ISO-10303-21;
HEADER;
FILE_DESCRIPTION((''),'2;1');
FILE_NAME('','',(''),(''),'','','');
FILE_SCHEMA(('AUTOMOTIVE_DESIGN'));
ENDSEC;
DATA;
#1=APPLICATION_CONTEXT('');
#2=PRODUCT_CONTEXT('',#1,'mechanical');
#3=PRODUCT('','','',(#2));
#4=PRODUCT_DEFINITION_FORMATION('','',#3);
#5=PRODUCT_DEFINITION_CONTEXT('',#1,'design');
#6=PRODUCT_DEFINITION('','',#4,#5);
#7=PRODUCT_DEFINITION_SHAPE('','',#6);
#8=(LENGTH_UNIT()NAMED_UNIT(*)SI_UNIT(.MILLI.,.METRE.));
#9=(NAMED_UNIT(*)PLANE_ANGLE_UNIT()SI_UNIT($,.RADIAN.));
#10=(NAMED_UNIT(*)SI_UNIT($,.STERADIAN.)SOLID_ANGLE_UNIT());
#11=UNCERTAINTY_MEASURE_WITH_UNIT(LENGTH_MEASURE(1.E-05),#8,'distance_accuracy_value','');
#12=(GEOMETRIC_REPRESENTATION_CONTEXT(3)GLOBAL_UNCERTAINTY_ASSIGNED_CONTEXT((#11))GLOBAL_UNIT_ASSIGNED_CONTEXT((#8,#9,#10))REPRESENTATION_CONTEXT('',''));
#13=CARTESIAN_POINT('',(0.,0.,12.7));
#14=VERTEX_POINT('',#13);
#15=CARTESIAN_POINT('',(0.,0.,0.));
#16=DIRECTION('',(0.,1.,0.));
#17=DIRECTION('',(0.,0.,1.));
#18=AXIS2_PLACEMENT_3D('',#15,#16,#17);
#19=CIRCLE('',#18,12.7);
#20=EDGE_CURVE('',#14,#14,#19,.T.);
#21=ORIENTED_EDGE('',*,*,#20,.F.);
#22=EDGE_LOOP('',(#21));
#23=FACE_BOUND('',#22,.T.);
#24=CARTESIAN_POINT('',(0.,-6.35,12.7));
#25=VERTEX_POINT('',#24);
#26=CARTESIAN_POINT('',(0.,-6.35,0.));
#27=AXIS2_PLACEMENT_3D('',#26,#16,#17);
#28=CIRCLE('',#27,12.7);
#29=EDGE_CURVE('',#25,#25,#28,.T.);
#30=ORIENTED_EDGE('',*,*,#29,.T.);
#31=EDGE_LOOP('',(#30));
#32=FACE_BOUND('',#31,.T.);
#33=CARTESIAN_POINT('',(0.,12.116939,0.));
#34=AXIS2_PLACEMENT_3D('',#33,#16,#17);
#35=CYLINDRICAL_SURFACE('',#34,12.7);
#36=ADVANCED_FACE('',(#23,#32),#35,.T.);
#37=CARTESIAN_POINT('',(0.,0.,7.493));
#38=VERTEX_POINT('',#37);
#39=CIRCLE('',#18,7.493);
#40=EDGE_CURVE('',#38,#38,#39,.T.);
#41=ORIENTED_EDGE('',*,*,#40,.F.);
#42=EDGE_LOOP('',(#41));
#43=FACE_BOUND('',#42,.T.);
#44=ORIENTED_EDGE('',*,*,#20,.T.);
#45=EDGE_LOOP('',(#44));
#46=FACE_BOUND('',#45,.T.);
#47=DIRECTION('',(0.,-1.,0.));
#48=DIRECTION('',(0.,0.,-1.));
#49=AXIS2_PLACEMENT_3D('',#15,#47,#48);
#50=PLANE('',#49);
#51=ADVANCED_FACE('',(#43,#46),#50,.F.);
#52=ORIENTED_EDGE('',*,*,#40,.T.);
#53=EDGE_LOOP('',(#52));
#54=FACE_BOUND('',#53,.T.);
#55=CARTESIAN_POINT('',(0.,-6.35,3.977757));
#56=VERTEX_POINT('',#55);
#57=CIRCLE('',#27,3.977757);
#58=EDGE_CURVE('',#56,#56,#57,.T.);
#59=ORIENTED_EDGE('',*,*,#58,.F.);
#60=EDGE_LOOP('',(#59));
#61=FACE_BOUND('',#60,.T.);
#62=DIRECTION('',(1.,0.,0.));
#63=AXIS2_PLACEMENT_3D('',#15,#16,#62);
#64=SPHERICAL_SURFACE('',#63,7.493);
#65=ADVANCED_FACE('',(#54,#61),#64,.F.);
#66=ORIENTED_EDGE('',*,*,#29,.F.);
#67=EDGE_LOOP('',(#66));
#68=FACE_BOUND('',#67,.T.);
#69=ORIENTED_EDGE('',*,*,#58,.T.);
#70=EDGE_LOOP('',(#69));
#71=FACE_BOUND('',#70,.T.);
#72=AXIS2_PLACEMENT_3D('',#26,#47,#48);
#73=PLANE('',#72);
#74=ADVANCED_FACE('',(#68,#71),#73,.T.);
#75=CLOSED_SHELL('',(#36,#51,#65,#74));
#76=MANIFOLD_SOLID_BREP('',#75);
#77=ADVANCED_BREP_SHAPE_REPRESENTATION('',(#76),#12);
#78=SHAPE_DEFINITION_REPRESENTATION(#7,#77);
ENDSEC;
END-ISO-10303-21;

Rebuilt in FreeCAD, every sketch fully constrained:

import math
import FreeCAD as App
import Part
import Sketcher
from FreeCAD import Vector
Q = App.Units.Quantity

doc = App.newDocument("Part")
body = doc.addObject("PartDesign::Body", "Body")

sketch1 = body.newObject("Sketcher::SketchObject", "Sketch")
sketch1.AttachmentSupport = (doc.getObject("XY_Plane"), [""])
sketch1.MapMode = "FlatFace"
sketch1.addGeometry([
    Part.ArcOfCircle(Part.Circle(Vector(0, 0, 0), Vector(0, 0, 1), 7), math.radians(-58), math.radians(0)),
    Part.LineSegment(Vector(4, -6, 0), Vector(13, -6, 0)),
    Part.LineSegment(Vector(13, -6, 0), Vector(13, 0, 0)),
    Part.LineSegment(Vector(13, 0, 0), Vector(7, 0, 0)),
], False)
sketch1.addConstraint([
    Sketcher.Constraint("Coincident", 0, 1, 1, 1),
    Sketcher.Constraint("Coincident", 1, 2, 2, 1),
    Sketcher.Constraint("Coincident", 2, 2, 3, 1),
    Sketcher.Constraint("Coincident", 3, 2, 0, 2),
    Sketcher.Constraint("Horizontal", 1),
    Sketcher.Constraint("Vertical", 2),
    Sketcher.Constraint("Horizontal", 3),
    Sketcher.Constraint("Coincident", 0, 3, -1, 1),
    Sketcher.Constraint("PointOnObject", 2, 2, -1),
    Sketcher.Constraint("Radius", 0, Q("0.295 in")),
    Sketcher.Constraint("DistanceY", 2, 1, 2, 2, Q("0.25 in")),
    Sketcher.Constraint("DistanceX", -1, 1, 1, 2, Q("0.5 in")),
])
revolution = body.newObject("PartDesign::Revolution", "Revolution")
revolution.Profile = sketch1
revolution.ReferenceAxis = (sketch1, ["V_Axis"])
revolution.Angle = 360

doc.recompute()
